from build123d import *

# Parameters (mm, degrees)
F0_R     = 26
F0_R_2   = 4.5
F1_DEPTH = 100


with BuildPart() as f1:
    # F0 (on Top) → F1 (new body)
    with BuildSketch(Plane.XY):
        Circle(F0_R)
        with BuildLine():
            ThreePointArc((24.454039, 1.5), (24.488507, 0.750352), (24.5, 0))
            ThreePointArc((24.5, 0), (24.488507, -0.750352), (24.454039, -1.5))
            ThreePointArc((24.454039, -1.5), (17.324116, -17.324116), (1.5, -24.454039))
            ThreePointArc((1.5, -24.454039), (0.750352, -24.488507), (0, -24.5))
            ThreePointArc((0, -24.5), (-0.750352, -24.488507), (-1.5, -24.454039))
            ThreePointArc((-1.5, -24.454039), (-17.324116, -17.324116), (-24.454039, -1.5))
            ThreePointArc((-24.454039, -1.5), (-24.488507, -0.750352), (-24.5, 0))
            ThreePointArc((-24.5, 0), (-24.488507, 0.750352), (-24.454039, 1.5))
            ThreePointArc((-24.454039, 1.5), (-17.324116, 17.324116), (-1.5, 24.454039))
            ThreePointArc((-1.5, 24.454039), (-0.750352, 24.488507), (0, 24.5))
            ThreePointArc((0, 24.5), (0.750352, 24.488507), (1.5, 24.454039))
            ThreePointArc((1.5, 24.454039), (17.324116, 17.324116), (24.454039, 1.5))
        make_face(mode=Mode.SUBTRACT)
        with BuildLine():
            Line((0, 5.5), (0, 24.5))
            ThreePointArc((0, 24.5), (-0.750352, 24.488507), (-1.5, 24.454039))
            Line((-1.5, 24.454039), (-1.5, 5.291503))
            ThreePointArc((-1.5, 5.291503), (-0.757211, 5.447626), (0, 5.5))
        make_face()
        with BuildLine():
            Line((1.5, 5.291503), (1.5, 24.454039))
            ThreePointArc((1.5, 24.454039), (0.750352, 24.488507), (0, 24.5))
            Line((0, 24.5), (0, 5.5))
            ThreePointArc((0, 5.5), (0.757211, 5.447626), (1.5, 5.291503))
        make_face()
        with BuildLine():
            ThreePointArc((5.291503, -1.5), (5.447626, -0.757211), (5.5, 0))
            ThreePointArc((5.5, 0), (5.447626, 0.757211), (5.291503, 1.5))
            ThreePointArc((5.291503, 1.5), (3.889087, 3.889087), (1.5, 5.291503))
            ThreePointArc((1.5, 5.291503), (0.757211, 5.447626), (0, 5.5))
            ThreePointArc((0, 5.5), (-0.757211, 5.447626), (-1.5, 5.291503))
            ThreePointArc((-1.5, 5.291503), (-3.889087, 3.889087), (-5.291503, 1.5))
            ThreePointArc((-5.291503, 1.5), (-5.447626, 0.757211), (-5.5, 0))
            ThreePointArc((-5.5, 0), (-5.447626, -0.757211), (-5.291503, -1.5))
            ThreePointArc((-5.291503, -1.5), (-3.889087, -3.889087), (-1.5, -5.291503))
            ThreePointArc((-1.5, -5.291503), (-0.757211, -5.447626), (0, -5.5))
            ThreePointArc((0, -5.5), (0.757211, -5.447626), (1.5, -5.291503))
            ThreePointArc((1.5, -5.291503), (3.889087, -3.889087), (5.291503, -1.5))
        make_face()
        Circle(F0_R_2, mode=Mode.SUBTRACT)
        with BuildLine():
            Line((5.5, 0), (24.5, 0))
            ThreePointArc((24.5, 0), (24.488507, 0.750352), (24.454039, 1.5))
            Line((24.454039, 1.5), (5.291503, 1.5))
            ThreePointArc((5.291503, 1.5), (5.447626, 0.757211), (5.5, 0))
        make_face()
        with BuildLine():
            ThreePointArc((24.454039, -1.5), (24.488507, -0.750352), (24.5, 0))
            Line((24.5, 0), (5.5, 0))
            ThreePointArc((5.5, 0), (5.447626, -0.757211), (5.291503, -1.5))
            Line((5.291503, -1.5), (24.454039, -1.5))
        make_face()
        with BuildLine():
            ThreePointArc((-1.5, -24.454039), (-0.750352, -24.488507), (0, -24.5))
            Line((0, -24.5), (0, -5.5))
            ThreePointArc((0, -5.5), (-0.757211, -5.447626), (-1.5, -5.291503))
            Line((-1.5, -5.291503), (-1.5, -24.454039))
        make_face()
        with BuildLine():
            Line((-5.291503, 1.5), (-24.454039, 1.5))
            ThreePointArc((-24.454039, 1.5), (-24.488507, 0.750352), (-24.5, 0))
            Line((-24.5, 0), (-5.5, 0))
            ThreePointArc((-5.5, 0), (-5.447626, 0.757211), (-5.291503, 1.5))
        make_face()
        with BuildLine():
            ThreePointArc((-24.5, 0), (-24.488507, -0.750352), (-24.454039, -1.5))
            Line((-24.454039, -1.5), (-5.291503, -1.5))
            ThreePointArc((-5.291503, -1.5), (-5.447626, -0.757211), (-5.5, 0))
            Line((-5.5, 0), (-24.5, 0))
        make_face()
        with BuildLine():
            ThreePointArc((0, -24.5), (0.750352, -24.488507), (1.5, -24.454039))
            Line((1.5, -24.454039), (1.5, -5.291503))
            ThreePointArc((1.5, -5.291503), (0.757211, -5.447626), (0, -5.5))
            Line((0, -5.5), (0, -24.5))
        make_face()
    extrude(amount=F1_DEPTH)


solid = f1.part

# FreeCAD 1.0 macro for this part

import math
import FreeCAD as App
import Part
import Sketcher

V = App.Vector

doc = App.newDocument("Part")
body = doc.addObject("PartDesign::Body", "Body")

# Sketch on XY plane
sketch1 = doc.addObject("Sketcher::SketchObject", "Sketch")
body.addObject(sketch1)
sketch1.AttachmentSupport = (doc.XY_Plane, [""])
sketch1.MapMode = "FlatFace"
sketch1.addGeometry(Part.Circle(V(0, 0, 0), V(0, 0, 1), 26), False)
sketch1.addGeometry(Part.ArcOfCircle(Part.Circle(V(0, 0, 0), V(0, 0, 1), 24.5), math.radians(4), math.radians(86)), False)
sketch1.addGeometry(Part.LineSegment(V(24.5, 1.5, 0), V(5.3, 1.5, 0)), False)
sketch1.addGeometry(Part.ArcOfCircle(Part.Circle(V(0, 0, 0), V(0, 0, 1), 5.5), math.radians(16), math.radians(74)), False)
sketch1.addGeometry(Part.LineSegment(V(1.5, 5.3, 0), V(1.5, 24.5, 0)), False)
sketch1.addGeometry(Part.ArcOfCircle(Part.Circle(V(0, 0, 0), V(0, 0, 1), 24.5), math.radians(-86), math.radians(-4)), False)
sketch1.addGeometry(Part.LineSegment(V(1.5, -24.5, 0), V(1.5, -5.3, 0)), False)
sketch1.addGeometry(Part.ArcOfCircle(Part.Circle(V(0, 0, 0), V(0, 0, 1), 5.5), math.radians(-74), math.radians(-16)), False)
sketch1.addGeometry(Part.LineSegment(V(5.3, -1.5, 0), V(24.5, -1.5, 0)), False)
sketch1.addGeometry(Part.ArcOfCircle(Part.Circle(V(0, 0, 0), V(0, 0, 1), 24.5), math.radians(-176), math.radians(-94)), False)
sketch1.addGeometry(Part.LineSegment(V(-24.5, -1.5, 0), V(-5.3, -1.5, 0)), False)
sketch1.addGeometry(Part.ArcOfCircle(Part.Circle(V(0, 0, 0), V(0, 0, 1), 5.5), math.radians(-164), math.radians(-106)), False)
sketch1.addGeometry(Part.LineSegment(V(-1.5, -5.3, 0), V(-1.5, -24.5, 0)), False)
sketch1.addGeometry(Part.ArcOfCircle(Part.Circle(V(0, 0, 0), V(0, 0, 1), 24.5), math.radians(94), math.radians(176)), False)
sketch1.addGeometry(Part.LineSegment(V(-1.5, 24.5, 0), V(-1.5, 5.3, 0)), False)
sketch1.addGeometry(Part.ArcOfCircle(Part.Circle(V(0, 0, 0), V(0, 0, 1), 5.5), math.radians(106), math.radians(164)), False)
sketch1.addGeometry(Part.LineSegment(V(-5.3, 1.5, 0), V(-24.5, 1.5, 0)), False)
sketch1.addGeometry(Part.Circle(V(0, 0, 0), V(0, 0, 1), 4.5), False)
sketch1.addConstraint(Sketcher.Constraint("Coincident", 1, 1, 2, 1))
sketch1.addConstraint(Sketcher.Constraint("Coincident", 2, 2, 3, 1))
sketch1.addConstraint(Sketcher.Constraint("Coincident", 3, 2, 4, 1))
sketch1.addConstraint(Sketcher.Constraint("Coincident", 4, 2, 1, 2))
sketch1.addConstraint(Sketcher.Constraint("Coincident", 5, 1, 6, 1))
sketch1.addConstraint(Sketcher.Constraint("Coincident", 6, 2, 7, 1))
sketch1.addConstraint(Sketcher.Constraint("Coincident", 7, 2, 8, 1))
sketch1.addConstraint(Sketcher.Constraint("Coincident", 8, 2, 5, 2))
sketch1.addConstraint(Sketcher.Constraint("Coincident", 9, 1, 10, 1))
sketch1.addConstraint(Sketcher.Constraint("Coincident", 10, 2, 11, 1))
sketch1.addConstraint(Sketcher.Constraint("Coincident", 11, 2, 12, 1))
sketch1.addConstraint(Sketcher.Constraint("Coincident", 12, 2, 9, 2))
sketch1.addConstraint(Sketcher.Constraint("Coincident", 13, 1, 14, 1))
sketch1.addConstraint(Sketcher.Constraint("Coincident", 14, 2, 15, 1))
sketch1.addConstraint(Sketcher.Constraint("Coincident", 15, 2, 16, 1))
sketch1.addConstraint(Sketcher.Constraint("Coincident", 16, 2, 13, 2))
sketch1.addConstraint(Sketcher.Constraint("Horizontal", 2))
sketch1.addConstraint(Sketcher.Constraint("Vertical", 4))
sketch1.addConstraint(Sketcher.Constraint("Vertical", 6))
sketch1.addConstraint(Sketcher.Constraint("Horizontal", 8))
sketch1.addConstraint(Sketcher.Constraint("Horizontal", 10))
sketch1.addConstraint(Sketcher.Constraint("Vertical", 12))
sketch1.addConstraint(Sketcher.Constraint("Vertical", 14))
sketch1.addConstraint(Sketcher.Constraint("Horizontal", 16))
sketch1.addConstraint(Sketcher.Constraint("Coincident", 0, 3, -1, 1))
sketch1.addConstraint(Sketcher.Constraint("Coincident", 1, 3, -1, 1))
sketch1.addConstraint(Sketcher.Constraint("Coincident", 3, 3, -1, 1))
sketch1.addConstraint(Sketcher.Constraint("Coincident", 5, 3, -1, 1))
sketch1.addConstraint(Sketcher.Constraint("Coincident", 7, 3, -1, 1))
sketch1.addConstraint(Sketcher.Constraint("Coincident", 9, 3, -1, 1))
sketch1.addConstraint(Sketcher.Constraint("Coincident", 11, 3, -1, 1))
sketch1.addConstraint(Sketcher.Constraint("Coincident", 13, 3, -1, 1))
sketch1.addConstraint(Sketcher.Constraint("Coincident", 15, 3, -1, 1))
sketch1.addConstraint(Sketcher.Constraint("Coincident", 17, 3, -1, 1))
sketch1.addConstraint(Sketcher.Constraint("Equal", 1, 5))
sketch1.addConstraint(Sketcher.Constraint("Equal", 3, 7))
sketch1.addConstraint(Sketcher.Constraint("Equal", 5, 9))
sketch1.addConstraint(Sketcher.Constraint("Equal", 7, 11))
sketch1.addConstraint(Sketcher.Constraint("Equal", 9, 13))
sketch1.addConstraint(Sketcher.Constraint("Equal", 11, 15))
sketch1.addConstraint(Sketcher.Constraint("Horizontal", 8, 2, 9, 1))
sketch1.addConstraint(Sketcher.Constraint("Horizontal", 6, 2, 11, 2))
sketch1.addConstraint(Sketcher.Constraint("Horizontal", 4, 2, 13, 1))
sketch1.addConstraint(Sketcher.Constraint("Horizontal", 2, 2, 15, 2))
sketch1.addConstraint(Sketcher.Constraint("Vertical", 4, 2, 5, 1))
sketch1.addConstraint(Sketcher.Constraint("Vertical", 2, 2, 7, 2))
sketch1.addConstraint(Sketcher.Constraint("Equal", 16, 4))
sketch1.addConstraint(Sketcher.Constraint("Diameter", 0, 52.0))
sketch1.addConstraint(Sketcher.Constraint("Diameter", 17, 9.0))
sketch1.addConstraint(Sketcher.Constraint("DistanceY", 7, 2, 2, 2, 3.0))
sketch1.addConstraint(Sketcher.Constraint("Radius", 1, 24.500002))
sketch1.addConstraint(Sketcher.Constraint("Radius", 3, 5.500006))
pad1 = doc.addObject("PartDesign::Pad", "Pad")
body.addObject(pad1)
pad1.Profile = sketch1
pad1.Length = 100

doc.recompute()
